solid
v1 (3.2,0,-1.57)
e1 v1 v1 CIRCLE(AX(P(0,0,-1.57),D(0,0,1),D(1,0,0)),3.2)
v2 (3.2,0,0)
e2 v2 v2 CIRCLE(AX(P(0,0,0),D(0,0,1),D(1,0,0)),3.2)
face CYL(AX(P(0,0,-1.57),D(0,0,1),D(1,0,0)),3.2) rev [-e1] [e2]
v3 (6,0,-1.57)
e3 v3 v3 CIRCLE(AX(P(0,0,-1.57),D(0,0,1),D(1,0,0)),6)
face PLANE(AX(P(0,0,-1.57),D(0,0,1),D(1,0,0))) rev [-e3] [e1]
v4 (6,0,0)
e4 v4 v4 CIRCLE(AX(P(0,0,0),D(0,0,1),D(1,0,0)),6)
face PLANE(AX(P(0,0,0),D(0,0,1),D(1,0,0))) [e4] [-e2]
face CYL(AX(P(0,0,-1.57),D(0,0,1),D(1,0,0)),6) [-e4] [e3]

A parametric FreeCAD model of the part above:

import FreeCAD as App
import Part
import Sketcher

V = App.Vector
Q = App.Units.Quantity

doc = App.newDocument("Part")
body = doc.addObject("PartDesign::Body", "Body")

sketch1 = doc.addObject("Sketcher::SketchObject", "Sketch")
body.addObject(sketch1)
sketch1.AttachmentSupport = (doc.XY_Plane, [""])
sketch1.MapMode = "FlatFace"
sketch1.addGeometry([
    Part.Circle(V(0, 0, 0), V(0, 0, 1), 6),
    Part.Circle(V(0, 0, 0), V(0, 0, 1), 3.2),
], False)
sketch1.addConstraint([
    Sketcher.Constraint("Coincident", 0, 3, -1, 1),
    Sketcher.Constraint("Coincident", 1, 3, -1, 1),
    Sketcher.Constraint("Diameter", 0, Q("12 mm")),
    Sketcher.Constraint("Diameter", 1, Q("6.4 mm")),
])
pad1 = doc.addObject("PartDesign::Pad", "Pad")
body.addObject(pad1)
pad1.Profile = sketch1
pad1.Length = 1.57
pad1.Reversed = True

doc.recompute()
